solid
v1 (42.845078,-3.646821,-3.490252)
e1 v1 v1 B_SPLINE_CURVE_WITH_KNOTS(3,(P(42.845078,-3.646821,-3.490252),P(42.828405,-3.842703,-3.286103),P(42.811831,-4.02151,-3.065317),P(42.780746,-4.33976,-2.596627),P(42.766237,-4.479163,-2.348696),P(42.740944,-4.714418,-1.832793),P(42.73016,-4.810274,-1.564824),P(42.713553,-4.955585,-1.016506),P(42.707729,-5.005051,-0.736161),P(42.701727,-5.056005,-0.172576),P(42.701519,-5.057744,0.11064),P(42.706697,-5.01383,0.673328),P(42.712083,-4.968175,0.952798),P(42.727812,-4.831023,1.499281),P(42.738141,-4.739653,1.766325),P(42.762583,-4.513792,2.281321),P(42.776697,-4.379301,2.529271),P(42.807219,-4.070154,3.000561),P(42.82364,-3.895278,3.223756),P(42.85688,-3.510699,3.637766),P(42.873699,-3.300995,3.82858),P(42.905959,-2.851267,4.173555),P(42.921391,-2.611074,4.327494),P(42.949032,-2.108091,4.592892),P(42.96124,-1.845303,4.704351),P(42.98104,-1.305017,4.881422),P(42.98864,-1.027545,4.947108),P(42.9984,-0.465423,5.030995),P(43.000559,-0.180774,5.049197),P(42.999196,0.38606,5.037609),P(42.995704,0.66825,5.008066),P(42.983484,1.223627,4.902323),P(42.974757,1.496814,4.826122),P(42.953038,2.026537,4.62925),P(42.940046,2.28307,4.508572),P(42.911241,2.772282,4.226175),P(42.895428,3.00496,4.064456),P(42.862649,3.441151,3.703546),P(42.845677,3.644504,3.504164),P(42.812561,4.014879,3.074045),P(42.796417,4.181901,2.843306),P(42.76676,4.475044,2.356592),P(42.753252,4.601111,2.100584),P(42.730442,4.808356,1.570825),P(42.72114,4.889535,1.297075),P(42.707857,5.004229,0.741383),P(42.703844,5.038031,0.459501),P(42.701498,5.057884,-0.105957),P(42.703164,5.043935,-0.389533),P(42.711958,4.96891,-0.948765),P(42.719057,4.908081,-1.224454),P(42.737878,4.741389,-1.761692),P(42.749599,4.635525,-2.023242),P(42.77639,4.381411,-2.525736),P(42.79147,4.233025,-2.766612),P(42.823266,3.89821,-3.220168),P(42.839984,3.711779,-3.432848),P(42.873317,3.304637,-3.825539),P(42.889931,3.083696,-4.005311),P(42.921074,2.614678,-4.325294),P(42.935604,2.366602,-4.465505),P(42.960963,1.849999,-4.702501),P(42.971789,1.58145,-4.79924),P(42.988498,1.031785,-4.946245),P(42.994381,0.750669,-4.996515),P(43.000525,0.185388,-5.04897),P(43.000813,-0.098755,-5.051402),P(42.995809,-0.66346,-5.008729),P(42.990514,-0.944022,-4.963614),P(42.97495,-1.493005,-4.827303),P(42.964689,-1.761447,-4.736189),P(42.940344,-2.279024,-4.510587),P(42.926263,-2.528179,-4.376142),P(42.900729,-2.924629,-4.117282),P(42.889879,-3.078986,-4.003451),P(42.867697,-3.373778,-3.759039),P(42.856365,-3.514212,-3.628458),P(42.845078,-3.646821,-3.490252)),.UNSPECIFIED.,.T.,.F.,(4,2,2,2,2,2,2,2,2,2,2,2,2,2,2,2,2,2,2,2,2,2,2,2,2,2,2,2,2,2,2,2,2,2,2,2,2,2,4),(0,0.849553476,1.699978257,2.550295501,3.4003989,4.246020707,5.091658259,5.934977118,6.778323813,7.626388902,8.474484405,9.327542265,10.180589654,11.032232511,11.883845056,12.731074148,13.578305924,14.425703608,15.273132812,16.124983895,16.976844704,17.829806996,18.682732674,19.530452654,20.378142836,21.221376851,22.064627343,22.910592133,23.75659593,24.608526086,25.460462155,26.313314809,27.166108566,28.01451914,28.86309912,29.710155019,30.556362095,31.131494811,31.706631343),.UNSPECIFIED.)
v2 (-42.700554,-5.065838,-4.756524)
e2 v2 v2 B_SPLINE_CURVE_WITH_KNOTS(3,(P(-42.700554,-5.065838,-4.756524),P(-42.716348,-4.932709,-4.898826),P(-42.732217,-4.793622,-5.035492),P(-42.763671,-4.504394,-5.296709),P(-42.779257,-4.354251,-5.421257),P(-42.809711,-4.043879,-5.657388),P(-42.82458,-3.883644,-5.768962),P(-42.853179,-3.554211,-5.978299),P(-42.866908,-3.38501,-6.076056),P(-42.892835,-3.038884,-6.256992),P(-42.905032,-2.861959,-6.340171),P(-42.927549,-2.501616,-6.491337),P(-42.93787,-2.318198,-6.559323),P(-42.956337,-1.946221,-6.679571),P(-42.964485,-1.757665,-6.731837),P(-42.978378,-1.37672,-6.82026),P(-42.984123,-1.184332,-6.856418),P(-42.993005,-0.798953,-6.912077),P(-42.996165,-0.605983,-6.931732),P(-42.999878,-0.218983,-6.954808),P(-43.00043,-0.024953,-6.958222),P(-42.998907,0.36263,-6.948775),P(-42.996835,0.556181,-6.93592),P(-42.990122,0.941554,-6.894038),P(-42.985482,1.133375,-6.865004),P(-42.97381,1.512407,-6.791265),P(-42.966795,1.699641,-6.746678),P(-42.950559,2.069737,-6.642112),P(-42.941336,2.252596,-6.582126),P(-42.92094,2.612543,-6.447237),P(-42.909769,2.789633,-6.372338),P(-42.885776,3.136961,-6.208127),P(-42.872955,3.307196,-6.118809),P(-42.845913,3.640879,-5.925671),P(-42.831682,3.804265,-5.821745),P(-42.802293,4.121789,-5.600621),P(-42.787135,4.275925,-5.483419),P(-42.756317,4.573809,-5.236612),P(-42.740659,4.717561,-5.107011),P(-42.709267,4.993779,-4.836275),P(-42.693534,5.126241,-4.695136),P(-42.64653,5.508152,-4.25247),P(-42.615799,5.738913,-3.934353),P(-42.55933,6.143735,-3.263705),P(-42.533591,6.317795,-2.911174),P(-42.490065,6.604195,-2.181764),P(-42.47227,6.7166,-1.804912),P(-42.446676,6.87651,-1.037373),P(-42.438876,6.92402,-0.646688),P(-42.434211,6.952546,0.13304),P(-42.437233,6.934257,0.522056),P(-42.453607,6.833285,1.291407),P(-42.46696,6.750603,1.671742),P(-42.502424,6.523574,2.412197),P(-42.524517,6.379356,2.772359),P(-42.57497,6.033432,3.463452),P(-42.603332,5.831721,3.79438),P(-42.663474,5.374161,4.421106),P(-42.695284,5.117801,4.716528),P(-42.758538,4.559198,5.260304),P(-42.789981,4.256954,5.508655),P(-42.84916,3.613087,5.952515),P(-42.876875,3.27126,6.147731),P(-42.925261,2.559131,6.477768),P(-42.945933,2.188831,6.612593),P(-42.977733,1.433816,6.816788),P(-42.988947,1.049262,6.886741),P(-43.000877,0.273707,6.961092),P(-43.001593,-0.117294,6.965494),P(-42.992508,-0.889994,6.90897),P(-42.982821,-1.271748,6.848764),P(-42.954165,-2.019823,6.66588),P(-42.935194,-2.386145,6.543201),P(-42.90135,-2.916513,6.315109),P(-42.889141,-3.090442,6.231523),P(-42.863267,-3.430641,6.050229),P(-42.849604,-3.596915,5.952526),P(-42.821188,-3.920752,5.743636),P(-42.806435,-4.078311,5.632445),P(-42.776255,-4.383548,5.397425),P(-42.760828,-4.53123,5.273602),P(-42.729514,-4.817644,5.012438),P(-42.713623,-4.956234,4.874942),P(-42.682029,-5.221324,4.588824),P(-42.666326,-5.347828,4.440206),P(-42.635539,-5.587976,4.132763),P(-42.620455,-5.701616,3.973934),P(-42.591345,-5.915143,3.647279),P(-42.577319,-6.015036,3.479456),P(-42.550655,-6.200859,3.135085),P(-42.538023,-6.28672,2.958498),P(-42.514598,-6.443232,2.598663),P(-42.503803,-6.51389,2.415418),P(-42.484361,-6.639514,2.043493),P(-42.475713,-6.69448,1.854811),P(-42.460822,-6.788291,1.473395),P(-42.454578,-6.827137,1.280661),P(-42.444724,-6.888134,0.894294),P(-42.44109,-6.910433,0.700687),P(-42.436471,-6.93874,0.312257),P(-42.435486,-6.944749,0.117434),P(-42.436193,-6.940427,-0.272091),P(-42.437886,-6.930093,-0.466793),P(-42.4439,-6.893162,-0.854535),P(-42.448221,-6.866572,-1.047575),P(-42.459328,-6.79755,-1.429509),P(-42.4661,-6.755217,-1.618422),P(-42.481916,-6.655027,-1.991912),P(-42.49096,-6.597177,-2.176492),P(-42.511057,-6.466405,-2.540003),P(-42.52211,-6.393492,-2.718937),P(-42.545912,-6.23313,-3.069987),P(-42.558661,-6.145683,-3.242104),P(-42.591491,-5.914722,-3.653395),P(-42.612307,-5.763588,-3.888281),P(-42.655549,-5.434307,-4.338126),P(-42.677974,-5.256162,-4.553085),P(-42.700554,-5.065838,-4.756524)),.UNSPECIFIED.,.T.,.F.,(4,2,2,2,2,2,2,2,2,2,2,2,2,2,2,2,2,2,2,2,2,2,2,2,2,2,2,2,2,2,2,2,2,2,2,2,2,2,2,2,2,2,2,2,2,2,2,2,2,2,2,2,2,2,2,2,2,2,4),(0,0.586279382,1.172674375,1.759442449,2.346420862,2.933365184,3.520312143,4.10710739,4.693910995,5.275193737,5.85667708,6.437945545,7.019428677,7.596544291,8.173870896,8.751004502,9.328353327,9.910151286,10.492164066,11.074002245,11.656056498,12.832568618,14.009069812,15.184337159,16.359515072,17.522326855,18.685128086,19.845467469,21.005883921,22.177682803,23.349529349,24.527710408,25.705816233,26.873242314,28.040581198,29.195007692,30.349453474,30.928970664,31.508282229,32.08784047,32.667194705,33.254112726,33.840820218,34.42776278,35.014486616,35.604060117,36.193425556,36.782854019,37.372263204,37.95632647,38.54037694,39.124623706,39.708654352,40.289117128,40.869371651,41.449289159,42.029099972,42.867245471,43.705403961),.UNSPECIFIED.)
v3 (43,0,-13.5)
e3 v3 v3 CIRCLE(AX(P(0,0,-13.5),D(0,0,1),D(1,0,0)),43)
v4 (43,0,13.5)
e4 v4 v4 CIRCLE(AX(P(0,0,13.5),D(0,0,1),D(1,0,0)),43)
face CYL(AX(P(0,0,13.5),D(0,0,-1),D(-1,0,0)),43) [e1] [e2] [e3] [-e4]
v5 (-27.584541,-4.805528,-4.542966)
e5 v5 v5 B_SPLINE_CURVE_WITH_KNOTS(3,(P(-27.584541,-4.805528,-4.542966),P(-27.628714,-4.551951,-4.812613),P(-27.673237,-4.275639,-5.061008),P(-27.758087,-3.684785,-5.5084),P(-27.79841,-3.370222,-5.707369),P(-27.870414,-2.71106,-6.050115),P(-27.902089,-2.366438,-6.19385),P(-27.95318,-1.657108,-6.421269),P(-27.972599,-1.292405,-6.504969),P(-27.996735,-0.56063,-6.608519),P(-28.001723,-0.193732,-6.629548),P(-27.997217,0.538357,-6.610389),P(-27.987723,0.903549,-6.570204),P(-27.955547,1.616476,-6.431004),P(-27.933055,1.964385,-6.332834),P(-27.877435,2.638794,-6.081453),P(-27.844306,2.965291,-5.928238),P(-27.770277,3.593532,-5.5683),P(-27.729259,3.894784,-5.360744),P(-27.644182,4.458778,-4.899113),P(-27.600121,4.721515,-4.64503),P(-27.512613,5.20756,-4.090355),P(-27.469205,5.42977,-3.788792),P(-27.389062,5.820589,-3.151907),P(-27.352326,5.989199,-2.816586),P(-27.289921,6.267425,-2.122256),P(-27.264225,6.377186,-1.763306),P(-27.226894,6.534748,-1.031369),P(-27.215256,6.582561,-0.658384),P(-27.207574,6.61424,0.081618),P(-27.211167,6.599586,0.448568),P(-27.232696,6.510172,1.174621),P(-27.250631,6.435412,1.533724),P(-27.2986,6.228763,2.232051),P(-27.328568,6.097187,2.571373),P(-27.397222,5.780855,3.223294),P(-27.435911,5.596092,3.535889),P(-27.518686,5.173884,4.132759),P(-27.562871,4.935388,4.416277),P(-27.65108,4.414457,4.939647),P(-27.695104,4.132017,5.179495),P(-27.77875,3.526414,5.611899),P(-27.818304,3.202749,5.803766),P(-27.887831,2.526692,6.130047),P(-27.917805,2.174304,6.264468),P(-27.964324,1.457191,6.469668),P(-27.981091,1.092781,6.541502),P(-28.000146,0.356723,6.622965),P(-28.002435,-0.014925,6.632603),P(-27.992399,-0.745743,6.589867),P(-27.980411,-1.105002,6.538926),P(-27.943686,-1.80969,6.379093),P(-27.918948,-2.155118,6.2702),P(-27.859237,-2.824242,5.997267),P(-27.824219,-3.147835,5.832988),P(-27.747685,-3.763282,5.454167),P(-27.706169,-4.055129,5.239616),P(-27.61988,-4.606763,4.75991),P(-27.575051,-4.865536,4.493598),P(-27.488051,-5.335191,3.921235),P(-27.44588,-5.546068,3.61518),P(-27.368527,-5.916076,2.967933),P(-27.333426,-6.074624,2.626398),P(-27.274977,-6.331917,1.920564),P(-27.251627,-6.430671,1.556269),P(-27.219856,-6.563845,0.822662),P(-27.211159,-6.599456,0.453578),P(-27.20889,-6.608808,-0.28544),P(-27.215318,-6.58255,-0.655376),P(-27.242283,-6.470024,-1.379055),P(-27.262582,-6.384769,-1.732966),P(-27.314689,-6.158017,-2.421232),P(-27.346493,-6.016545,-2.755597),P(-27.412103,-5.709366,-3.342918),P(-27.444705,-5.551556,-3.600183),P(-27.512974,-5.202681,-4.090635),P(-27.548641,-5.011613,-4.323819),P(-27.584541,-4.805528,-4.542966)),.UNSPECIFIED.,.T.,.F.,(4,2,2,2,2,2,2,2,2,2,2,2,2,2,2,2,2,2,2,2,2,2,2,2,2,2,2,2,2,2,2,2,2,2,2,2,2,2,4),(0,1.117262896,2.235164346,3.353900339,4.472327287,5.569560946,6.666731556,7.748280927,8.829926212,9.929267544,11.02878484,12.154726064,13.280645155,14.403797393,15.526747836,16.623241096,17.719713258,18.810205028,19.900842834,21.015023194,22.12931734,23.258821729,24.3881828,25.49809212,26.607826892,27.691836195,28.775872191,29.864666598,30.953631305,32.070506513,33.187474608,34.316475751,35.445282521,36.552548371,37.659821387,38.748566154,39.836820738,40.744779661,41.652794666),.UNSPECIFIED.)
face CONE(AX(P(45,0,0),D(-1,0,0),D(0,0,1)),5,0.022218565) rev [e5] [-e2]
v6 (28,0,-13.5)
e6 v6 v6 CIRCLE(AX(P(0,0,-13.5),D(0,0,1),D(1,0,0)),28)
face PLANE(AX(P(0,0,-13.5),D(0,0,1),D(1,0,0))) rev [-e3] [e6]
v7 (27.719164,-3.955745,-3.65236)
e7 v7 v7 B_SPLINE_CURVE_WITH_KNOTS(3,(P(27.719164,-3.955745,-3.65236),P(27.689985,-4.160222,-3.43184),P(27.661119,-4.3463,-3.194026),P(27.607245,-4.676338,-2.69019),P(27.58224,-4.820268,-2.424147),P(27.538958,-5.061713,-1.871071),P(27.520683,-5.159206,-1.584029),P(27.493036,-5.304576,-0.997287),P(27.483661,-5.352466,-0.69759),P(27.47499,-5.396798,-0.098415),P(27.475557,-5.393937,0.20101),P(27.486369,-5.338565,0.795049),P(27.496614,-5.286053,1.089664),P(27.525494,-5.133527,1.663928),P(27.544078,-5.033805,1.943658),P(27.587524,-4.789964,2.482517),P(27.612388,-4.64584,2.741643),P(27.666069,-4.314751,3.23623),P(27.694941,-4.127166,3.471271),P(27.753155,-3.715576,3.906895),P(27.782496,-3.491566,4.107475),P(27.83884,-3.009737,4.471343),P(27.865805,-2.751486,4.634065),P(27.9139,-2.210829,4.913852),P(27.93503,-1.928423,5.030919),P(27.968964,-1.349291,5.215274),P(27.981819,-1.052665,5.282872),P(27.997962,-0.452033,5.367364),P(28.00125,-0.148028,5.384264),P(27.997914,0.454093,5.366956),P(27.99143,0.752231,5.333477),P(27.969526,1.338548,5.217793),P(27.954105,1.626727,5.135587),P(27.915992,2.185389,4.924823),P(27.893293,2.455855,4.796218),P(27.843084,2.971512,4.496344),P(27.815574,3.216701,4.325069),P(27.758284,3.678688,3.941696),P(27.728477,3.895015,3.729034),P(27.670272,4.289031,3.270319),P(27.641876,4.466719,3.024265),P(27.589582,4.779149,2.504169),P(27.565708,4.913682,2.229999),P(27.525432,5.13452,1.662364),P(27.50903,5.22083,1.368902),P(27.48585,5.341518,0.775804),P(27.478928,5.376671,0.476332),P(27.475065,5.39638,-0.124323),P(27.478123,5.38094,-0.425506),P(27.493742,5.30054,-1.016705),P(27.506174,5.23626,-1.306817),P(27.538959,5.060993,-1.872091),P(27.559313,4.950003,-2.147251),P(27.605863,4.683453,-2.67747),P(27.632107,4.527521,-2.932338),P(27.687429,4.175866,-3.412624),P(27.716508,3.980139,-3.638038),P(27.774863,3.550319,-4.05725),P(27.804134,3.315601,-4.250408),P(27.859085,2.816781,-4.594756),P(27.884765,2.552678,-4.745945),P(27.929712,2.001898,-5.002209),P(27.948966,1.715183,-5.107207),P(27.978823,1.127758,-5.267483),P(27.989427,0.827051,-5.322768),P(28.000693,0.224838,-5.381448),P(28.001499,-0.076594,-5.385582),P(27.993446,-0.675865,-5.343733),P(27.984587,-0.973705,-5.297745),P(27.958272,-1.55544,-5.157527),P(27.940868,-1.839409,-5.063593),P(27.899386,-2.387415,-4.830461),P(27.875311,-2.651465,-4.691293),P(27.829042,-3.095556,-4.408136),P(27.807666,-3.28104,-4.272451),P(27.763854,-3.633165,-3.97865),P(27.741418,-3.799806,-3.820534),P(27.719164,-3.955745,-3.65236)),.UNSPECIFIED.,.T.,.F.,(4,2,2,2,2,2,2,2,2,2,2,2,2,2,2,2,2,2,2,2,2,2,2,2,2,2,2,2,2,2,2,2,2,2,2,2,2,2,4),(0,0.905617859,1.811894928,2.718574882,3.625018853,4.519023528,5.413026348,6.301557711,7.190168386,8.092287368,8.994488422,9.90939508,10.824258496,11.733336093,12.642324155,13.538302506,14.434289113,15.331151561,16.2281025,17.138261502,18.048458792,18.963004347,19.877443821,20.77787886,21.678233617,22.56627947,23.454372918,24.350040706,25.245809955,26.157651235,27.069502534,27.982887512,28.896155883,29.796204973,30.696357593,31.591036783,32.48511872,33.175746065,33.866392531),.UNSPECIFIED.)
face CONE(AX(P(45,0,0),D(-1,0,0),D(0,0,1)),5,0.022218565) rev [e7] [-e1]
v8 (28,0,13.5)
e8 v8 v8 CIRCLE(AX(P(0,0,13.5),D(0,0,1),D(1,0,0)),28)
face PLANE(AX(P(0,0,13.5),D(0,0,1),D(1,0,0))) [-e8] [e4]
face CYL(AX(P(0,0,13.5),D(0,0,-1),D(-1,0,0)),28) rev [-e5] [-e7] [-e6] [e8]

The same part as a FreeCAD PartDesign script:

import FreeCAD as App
import Part
import Sketcher
from FreeCAD import Vector
Q = App.Units.Quantity


def add_polygon(sketch, points):
    """Adds a closed chain of lines whose ends are joined by coincident constraints."""
    first, n = sketch.GeometryCount, len(points)
    for a, b in zip(points, points[1:] + points[:1]):
        sketch.addGeometry(Part.LineSegment(App.Vector(*a, 0), App.Vector(*b, 0)), False)
    for i in range(n):
        sketch.addConstraint(Sketcher.Constraint("Coincident", first + i, 2, first + (i + 1) % n, 1))

doc = App.newDocument("Part")
params = doc.addObject("Spreadsheet::Sheet", "Params")
for row, (alias, value) in enumerate([
    ("sketch1_diameter", "86 mm"),
    ("sketch1_diameter2", "56 mm"),
    ("pad1_length", "27 mm"),
    ("sketch2_width", "90 mm"),
    ("sketch2_height", "7 mm"),
    ("sketch2_height2", "5 mm"),
    ("groove_angle", "360 deg"),
], start=1):
    params.set(f"A{row}", alias)
    params.set(f"B{row}", "=" + value)
    params.setAlias(f"B{row}", alias)

body = doc.addObject("PartDesign::Body", "Body")

sketch1 = body.newObject("Sketcher::SketchObject", "Sketch")
sketch1.AttachmentSupport = (doc.getObject("XY_Plane"), [""])
sketch1.MapMode = "FlatFace"
sketch1.addGeometry([
    Part.Circle(Vector(0, 0, 0), Vector(0, 0, 1), 43),
    Part.Circle(Vector(0, 0, 0), Vector(0, 0, 1), 28),
], False)
sketch1.addConstraint([
    Sketcher.Constraint("Coincident", 0, 3, -1, 1),
    Sketcher.Constraint("Coincident", 1, 3, -1, 1),
    Sketcher.Constraint("Diameter", 0, Q("86 mm")),
    Sketcher.Constraint("Diameter", 1, Q("56 mm")),
])
sketch1.setExpression("Constraints[2]", "Params.sketch1_diameter")
sketch1.setExpression("Constraints[3]", "Params.sketch1_diameter2")
pad1 = body.newObject("PartDesign::Pad", "Pad")
pad1.Profile = sketch1
pad1.setExpression("Length", "Params.pad1_length")
pad1.Midplane = True

sketch2 = body.newObject("Sketcher::SketchObject", "Sketch001")
sketch2.AttachmentSupport = (doc.getObject("XZ_Plane"), [""])
sketch2.MapMode = "FlatFace"
add_polygon(sketch2, [(-45, -7), (-45, 0), (45, 0), (45, -5)])
sketch2.addConstraint([
    Sketcher.Constraint("Vertical", 0),
    Sketcher.Constraint("Horizontal", 1),
    Sketcher.Constraint("Vertical", 2),
    Sketcher.Constraint("Symmetric", 0, 2, 1, 2, -1, 1),
    Sketcher.Constraint("DistanceX", 1, 1, 1, 2, Q("90 mm")),
    Sketcher.Constraint("DistanceY", 0, 1, 0, 2, Q("7 mm")),
    Sketcher.Constraint("DistanceY", 2, 2, 2, 1, Q("5 mm")),
])
sketch2.setExpression("Constraints[8]", "Params.sketch2_width")
sketch2.setExpression("Constraints[9]", "Params.sketch2_height")
sketch2.setExpression("Constraints[10]", "Params.sketch2_height2")
groove = body.newObject("PartDesign::Groove", "Groove")
groove.Profile = sketch2
groove.ReferenceAxis = (sketch2, ["H_Axis"])
groove.setExpression("Angle", "Params.groove_angle")

doc.recompute()
